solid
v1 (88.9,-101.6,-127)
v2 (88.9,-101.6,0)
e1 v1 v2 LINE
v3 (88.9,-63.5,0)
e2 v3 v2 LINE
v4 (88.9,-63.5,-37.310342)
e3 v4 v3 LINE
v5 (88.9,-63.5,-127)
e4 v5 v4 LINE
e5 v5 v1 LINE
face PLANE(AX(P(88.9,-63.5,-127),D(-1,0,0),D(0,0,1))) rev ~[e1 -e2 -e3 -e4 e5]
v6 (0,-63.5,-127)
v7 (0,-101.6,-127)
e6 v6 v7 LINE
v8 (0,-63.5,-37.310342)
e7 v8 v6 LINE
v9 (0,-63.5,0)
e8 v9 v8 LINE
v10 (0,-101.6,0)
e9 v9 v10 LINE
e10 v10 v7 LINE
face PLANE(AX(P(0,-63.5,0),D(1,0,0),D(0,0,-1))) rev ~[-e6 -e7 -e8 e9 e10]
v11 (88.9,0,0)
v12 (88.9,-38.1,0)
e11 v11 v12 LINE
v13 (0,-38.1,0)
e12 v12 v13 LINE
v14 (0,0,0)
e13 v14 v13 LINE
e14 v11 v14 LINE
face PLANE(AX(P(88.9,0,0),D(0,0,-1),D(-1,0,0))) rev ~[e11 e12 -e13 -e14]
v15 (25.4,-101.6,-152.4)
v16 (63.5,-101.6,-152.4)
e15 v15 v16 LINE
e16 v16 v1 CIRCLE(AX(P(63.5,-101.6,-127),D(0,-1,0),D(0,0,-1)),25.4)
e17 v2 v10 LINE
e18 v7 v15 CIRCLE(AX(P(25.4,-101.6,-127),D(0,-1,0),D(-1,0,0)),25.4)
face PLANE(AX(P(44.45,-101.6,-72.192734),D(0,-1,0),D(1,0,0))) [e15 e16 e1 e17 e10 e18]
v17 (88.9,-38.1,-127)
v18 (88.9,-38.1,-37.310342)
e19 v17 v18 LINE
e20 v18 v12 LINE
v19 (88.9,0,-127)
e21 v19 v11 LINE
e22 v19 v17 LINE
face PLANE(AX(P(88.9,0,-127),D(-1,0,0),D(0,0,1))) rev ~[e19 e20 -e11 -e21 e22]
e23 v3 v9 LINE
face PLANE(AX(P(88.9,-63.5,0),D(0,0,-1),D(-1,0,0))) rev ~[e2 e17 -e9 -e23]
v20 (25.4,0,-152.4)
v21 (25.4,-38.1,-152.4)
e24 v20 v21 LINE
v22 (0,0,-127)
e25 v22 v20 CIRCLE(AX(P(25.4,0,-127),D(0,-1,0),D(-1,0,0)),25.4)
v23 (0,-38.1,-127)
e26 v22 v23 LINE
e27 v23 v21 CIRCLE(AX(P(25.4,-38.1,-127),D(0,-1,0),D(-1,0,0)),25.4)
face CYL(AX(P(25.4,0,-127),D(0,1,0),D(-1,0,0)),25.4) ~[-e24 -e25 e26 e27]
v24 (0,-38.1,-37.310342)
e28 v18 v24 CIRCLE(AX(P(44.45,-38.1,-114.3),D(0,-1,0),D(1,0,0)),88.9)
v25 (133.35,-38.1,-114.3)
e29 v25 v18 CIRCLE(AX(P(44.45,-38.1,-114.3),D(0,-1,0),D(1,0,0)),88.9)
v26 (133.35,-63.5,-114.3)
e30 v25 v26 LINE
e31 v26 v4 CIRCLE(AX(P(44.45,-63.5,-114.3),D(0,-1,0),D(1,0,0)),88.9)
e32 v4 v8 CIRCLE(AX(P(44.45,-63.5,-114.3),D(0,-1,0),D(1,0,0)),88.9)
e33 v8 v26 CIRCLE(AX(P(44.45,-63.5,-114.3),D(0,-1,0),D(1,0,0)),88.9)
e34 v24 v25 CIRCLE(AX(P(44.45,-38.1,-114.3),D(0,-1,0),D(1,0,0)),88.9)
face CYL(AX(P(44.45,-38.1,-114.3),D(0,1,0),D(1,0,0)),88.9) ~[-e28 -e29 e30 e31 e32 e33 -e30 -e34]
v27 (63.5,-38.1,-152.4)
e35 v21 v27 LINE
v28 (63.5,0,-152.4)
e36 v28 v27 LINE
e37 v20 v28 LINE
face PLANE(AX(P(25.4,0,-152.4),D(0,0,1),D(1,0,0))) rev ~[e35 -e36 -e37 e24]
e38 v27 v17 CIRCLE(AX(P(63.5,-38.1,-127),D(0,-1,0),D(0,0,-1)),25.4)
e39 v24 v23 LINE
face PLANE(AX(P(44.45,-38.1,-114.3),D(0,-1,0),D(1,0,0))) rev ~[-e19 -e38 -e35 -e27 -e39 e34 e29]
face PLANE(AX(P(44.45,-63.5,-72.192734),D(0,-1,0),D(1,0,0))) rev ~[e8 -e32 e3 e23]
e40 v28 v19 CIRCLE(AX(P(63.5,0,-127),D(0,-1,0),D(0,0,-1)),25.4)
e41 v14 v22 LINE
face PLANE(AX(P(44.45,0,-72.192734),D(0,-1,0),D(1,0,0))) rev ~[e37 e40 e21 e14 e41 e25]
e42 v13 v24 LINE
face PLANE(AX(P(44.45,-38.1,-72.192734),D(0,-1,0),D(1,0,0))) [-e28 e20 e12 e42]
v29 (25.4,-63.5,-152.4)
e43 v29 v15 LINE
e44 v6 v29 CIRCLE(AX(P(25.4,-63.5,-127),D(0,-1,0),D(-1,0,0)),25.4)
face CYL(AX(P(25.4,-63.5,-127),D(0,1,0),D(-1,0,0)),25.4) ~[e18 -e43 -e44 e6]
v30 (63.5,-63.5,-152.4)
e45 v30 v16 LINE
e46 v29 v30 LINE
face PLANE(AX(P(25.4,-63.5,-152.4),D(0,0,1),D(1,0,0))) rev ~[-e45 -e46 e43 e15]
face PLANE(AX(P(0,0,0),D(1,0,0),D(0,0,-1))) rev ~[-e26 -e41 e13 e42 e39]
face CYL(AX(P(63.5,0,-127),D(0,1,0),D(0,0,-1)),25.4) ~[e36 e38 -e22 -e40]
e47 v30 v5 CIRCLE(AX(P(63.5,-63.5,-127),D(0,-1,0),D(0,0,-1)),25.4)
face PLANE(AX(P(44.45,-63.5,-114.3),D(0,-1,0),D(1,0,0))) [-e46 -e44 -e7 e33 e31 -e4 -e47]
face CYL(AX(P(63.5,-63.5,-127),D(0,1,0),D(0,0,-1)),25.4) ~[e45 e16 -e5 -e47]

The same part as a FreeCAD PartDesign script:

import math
import FreeCAD as App
import Part
import Sketcher

V = App.Vector
Q = App.Units.Quantity

doc = App.newDocument("Part")
body = doc.addObject("PartDesign::Body", "Body")

sketch1 = body.newObject("Sketcher::SketchObject", "Sketch")
sketch1.AttachmentSupport = (doc.getObject("XZ_Plane"), [""])
sketch1.MapMode = "FlatFace"
sketch1.addGeometry(Part.LineSegment(V(88.9, 0, 0), V(0, 0, 0)), False)
sketch1.addGeometry(Part.LineSegment(V(0, 0, 0), V(0, -127, 0)), False)
sketch1.addGeometry(Part.ArcOfCircle(Part.Circle(V(25.4, -127, 0), V(0, 0, 1), 25.4), math.radians(180), math.radians(270)), False)
sketch1.addGeometry(Part.LineSegment(V(25.4, -152.4, 0), V(63.5, -152.4, 0)), False)
sketch1.addGeometry(Part.ArcOfCircle(Part.Circle(V(63.5, -127, 0), V(0, 0, 1), 25.4), math.radians(-90), math.radians(0)), False)
sketch1.addGeometry(Part.LineSegment(V(88.9, -127, 0), V(88.9, 0, 0)), False)
sketch1.addConstraint(Sketcher.Constraint("Coincident", 0, 2, 1, 1))
sketch1.addConstraint(Sketcher.Constraint("Tangent", 1, 2, 2, 1))
sketch1.addConstraint(Sketcher.Constraint("Tangent", 2, 2, 3, 1))
sketch1.addConstraint(Sketcher.Constraint("Tangent", 3, 2, 4, 1))
sketch1.addConstraint(Sketcher.Constraint("Tangent", 4, 2, 5, 1))
sketch1.addConstraint(Sketcher.Constraint("Coincident", 5, 2, 0, 1))
sketch1.addConstraint(Sketcher.Constraint("Horizontal", 0))
sketch1.addConstraint(Sketcher.Constraint("Vertical", 1))
sketch1.addConstraint(Sketcher.Constraint("Horizontal", 3))
sketch1.addConstraint(Sketcher.Constraint("Vertical", 5))
sketch1.addConstraint(Sketcher.Constraint("Coincident", 0, 2, -1, 1))
sketch1.addConstraint(Sketcher.Constraint("Equal", 2, 4))
sketch1.addConstraint(Sketcher.Constraint("Radius", 2, Q("1 in")))
sketch1.addConstraint(Sketcher.Constraint("DistanceY", 1, 2, 1, 1, Q("5 in")))
sketch1.addConstraint(Sketcher.Constraint("DistanceX", 0, 2, 0, 1, Q("3.5 in")))
pad1 = body.newObject("PartDesign::Pad", "Pad")
pad1.Profile = sketch1
pad1.Length = Q("1.5 in")

sketch2 = body.newObject("Sketcher::SketchObject", "Sketch001")
sketch2.AttachmentSupport = (doc.getObject("XZ_Plane"), [""])
sketch2.MapMode = "FlatFace"
sketch2.AttachmentOffset = App.Placement(V(0, 0, 1.5 * 25.4), App.Rotation())
sketch2.addGeometry(Part.Circle(V(44.45, -114.3, 0), V(0, 0, 1), 88.9), False)
sketch2.addConstraint(Sketcher.Constraint("Diameter", 0, Q("7 in")))
sketch2.addConstraint(Sketcher.Constraint("DistanceY", 0, 3, -1, 1, Q("4.5 in")))
sketch2.addConstraint(Sketcher.Constraint("DistanceX", -1, 1, 0, 3, Q("1.75 in")))
pad2 = body.newObject("PartDesign::Pad", "Pad001")
pad2.Profile = sketch2
pad2.Length = Q("1 in")

sketch3 = body.newObject("Sketcher::SketchObject", "Sketch002")
sketch3.AttachmentSupport = (doc.getObject("XZ_Plane"), [""])
sketch3.MapMode = "FlatFace"
sketch3.AttachmentOffset = App.Placement(V(0, 0, 2.5 * 25.4), App.Rotation())
sketch3.addGeometry(Part.LineSegment(V(88.9, 0, 0), V(0, 0, 0)), False)
sketch3.addGeometry(Part.LineSegment(V(0, 0, 0), V(0, -127, 0)), False)
sketch3.addGeometry(Part.ArcOfCircle(Part.Circle(V(25.4, -127, 0), V(0, 0, 1), 25.4), math.radians(180), math.radians(270)), False)
sketch3.addGeometry(Part.LineSegment(V(25.4, -152.4, 0), V(63.5, -152.4, 0)), False)
sketch3.addGeometry(Part.ArcOfCircle(Part.Circle(V(63.5, -127, 0), V(0, 0, 1), 25.4), math.radians(-90), math.radians(0)), False)
sketch3.addGeometry(Part.LineSegment(V(88.9, -127, 0), V(88.9, 0, 0)), False)
sketch3.addConstraint(Sketcher.Constraint("Coincident", 0, 2, 1, 1))
sketch3.addConstraint(Sketcher.Constraint("Tangent", 1, 2, 2, 1))
sketch3.addConstraint(Sketcher.Constraint("Tangent", 2, 2, 3, 1))
sketch3.addConstraint(Sketcher.Constraint("Tangent", 3, 2, 4, 1))
sketch3.addConstraint(Sketcher.Constraint("Tangent", 4, 2, 5, 1))
sketch3.addConstraint(Sketcher.Constraint("Coincident", 5, 2, 0, 1))
sketch3.addConstraint(Sketcher.Constraint("Horizontal", 0))
sketch3.addConstraint(Sketcher.Constraint("Vertical", 1))
sketch3.addConstraint(Sketcher.Constraint("Horizontal", 3))
sketch3.addConstraint(Sketcher.Constraint("Vertical", 5))
sketch3.addConstraint(Sketcher.Constraint("Coincident", 0, 2, -1, 1))
sketch3.addConstraint(Sketcher.Constraint("Equal", 2, 4))
sketch3.addConstraint(Sketcher.Constraint("Radius", 2, Q("1 in")))
sketch3.addConstraint(Sketcher.Constraint("DistanceY", 1, 2, 1, 1, Q("5 in")))
sketch3.addConstraint(Sketcher.Constraint("DistanceX", 0, 2, 0, 1, Q("3.5 in")))
pad3 = body.newObject("PartDesign::Pad", "Pad002")
pad3.Profile = sketch3
pad3.Length = Q("1.5 in")

doc.recompute()
